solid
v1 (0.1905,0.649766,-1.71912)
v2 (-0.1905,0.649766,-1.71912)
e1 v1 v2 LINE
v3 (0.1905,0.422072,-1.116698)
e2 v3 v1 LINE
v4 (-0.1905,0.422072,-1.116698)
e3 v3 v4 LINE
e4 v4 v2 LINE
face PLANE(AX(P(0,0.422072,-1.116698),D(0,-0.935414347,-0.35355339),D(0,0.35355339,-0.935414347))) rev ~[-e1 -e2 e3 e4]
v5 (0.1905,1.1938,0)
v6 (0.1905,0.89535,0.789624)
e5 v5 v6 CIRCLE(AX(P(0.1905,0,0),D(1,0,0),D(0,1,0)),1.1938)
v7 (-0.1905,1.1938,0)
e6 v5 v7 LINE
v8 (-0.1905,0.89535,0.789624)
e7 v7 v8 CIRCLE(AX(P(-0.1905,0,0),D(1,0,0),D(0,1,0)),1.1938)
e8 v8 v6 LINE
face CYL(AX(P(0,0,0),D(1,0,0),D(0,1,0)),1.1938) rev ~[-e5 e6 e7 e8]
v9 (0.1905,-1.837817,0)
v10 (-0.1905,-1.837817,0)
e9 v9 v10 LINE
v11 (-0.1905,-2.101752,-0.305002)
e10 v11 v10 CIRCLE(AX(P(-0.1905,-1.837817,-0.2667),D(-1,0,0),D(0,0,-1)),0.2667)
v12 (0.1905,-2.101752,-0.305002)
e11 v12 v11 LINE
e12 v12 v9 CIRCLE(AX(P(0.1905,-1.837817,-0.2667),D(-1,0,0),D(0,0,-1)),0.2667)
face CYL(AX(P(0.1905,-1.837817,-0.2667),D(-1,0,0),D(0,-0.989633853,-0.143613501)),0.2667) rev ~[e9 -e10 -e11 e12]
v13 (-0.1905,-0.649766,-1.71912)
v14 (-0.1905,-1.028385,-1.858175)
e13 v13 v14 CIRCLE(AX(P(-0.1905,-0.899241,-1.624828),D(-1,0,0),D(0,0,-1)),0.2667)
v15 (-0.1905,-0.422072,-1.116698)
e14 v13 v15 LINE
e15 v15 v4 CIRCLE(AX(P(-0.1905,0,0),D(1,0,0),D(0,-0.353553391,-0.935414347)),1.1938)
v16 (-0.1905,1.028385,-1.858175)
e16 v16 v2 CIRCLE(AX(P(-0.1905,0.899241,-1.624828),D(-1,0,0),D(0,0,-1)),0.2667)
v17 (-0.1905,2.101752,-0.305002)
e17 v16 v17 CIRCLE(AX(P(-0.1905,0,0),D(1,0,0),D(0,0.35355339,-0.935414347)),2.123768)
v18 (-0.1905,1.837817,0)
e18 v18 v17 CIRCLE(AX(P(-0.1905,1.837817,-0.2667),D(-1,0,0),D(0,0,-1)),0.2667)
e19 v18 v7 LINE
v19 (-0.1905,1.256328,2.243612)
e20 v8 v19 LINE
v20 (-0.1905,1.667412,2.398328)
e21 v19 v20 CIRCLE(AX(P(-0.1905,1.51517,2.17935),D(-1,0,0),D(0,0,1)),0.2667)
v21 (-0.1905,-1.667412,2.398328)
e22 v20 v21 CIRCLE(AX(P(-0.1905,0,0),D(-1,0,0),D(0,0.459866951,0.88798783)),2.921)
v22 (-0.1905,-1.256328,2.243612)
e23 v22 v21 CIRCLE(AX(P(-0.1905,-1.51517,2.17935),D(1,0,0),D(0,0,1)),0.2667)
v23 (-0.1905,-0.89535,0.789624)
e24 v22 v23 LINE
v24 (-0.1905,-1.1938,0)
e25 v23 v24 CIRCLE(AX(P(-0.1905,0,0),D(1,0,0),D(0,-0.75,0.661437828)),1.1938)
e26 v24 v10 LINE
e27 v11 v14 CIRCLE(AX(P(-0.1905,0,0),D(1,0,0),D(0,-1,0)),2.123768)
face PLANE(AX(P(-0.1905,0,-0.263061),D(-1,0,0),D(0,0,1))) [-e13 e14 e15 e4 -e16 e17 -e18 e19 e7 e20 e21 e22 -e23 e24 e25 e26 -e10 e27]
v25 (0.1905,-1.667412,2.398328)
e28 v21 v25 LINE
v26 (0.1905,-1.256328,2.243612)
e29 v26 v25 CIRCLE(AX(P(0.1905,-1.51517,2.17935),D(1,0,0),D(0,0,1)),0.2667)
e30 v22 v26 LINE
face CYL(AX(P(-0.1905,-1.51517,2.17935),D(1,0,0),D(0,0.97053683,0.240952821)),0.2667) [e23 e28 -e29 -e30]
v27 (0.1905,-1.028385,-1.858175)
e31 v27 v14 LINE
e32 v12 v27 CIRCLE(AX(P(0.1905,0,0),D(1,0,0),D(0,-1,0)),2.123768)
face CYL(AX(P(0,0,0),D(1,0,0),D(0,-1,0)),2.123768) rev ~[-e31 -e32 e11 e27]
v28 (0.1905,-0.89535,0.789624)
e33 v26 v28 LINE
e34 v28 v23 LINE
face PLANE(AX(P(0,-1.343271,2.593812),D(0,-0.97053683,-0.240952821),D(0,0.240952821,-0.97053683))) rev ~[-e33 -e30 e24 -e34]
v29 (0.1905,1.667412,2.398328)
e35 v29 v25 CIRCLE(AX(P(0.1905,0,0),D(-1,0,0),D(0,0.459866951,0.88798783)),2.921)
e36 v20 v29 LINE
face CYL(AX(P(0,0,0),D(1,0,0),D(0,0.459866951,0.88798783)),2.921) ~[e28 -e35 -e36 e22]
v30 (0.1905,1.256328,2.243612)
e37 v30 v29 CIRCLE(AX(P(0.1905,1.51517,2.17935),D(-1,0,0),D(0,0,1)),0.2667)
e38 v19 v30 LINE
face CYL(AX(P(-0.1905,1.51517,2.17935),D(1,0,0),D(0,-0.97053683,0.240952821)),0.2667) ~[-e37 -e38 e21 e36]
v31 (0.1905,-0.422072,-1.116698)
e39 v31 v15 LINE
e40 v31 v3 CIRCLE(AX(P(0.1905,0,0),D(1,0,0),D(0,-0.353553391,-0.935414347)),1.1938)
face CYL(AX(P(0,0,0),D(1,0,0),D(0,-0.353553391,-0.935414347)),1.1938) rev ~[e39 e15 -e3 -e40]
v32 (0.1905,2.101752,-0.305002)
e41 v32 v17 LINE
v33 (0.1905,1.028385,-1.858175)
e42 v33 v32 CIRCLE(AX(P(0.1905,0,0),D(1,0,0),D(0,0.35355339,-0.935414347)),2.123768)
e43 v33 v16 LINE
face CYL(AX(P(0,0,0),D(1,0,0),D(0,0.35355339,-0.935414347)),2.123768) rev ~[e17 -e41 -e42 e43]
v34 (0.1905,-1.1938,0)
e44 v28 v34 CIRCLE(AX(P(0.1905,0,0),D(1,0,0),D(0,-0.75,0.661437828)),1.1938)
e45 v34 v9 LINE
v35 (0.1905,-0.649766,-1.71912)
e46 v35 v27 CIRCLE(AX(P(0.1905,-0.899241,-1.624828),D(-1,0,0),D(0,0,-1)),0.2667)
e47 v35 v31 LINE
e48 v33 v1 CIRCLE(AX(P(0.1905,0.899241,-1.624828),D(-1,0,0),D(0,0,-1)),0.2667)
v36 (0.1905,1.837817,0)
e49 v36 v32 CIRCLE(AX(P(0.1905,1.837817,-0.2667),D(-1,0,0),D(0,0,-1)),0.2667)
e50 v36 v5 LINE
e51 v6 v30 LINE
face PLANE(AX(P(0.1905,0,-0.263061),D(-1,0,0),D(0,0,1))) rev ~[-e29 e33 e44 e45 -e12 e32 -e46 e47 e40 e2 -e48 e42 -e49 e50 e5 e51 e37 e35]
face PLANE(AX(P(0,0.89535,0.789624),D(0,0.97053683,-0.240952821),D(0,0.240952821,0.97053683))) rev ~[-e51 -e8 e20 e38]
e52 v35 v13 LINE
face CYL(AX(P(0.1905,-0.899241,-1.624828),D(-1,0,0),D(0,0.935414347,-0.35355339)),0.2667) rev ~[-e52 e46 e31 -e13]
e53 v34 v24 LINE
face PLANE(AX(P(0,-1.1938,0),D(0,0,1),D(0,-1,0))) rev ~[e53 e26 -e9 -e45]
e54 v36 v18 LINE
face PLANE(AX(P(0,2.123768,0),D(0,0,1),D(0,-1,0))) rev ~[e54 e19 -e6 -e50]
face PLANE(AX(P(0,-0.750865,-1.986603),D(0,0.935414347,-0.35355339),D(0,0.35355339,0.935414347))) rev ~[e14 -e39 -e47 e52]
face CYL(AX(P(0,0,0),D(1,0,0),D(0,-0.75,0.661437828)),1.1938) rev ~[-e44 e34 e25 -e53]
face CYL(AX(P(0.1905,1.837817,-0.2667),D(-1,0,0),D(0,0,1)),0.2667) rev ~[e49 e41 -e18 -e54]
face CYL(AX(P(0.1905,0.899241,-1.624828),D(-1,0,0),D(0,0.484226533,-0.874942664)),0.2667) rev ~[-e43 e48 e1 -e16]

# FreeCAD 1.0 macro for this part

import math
import FreeCAD as App
import Part
import Sketcher

V = App.Vector
Q = App.Units.Quantity


def edges_at(feature, points):
    """Names of the edges that pass closest to the given points."""
    edges = feature.Shape.Edges
    near = lambda p: min(range(len(edges)), key=lambda i: edges[i].distToShape(Part.Vertex(*p))[0])
    return sorted({f"Edge{near(p) + 1}" for p in points})

doc = App.newDocument("Part")
params = doc.addObject("Spreadsheet::Sheet", "Params")
for row, (alias, value) in enumerate([
    ("sketch1_radius", "0.115 in"),
    ("sketch1_radius2", "0.047 in"),
    ("pad1_length", "0.015 in"),
    ("fillet_radius", "0.0105 in"),
], start=1):
    params.set(f"A{row}", alias)
    params.set(f"B{row}", "=" + value)
    params.setAlias(f"B{row}", alias)

body = doc.addObject("PartDesign::Body", "Body")

# Sketch on YZ plane
sketch1 = body.newObject("Sketcher::SketchObject", "Sketch")
sketch1.AttachmentSupport = (doc.getObject("YZ_Plane"), [""])
sketch1.MapMode = "FlatFace"
sketch1.addGeometry([
    Part.LineSegment(V(-0.9, 0.8, 0), V(-1.3, 2.6, 0)),  # 0
    Part.ArcOfCircle(Part.Circle(V(0, 0, 0), V(0, 0, 1), 2.9), math.radians(117), math.radians(423)),  # 1
    Part.LineSegment(V(1.3, 2.6, 0), V(0.9, 0.8, 0)),  # 2
    Part.ArcOfCircle(Part.Circle(V(0, 0, 0), V(0, 0, 1), 1.2), math.radians(0), math.radians(41)),  # 3
    Part.LineSegment(V(1.2, 0, 0), V(2.1, 0, 0)),  # 4
    Part.ArcOfCircle(Part.Circle(V(0, 0, 0), V(0, 0, 1), 2.1), math.radians(-69), math.radians(0)),  # 5
    Part.LineSegment(V(0.8, -2, 0), V(0.4, -1.1, 0)),  # 6
    Part.ArcOfCircle(Part.Circle(V(0, 0, 0), V(0, 0, 1), 1.2), math.radians(-111), math.radians(-69)),  # 7
    Part.LineSegment(V(-0.4, -1.1, 0), V(-0.8, -2, 0)),  # 8
    Part.ArcOfCircle(Part.Circle(V(0, 0, 0), V(0, 0, 1), 2.1), math.radians(180), math.radians(249)),  # 9
    Part.LineSegment(V(-2.1, 0, 0), V(-1.2, 0, 0)),  # 10
    Part.ArcOfCircle(Part.Circle(V(0, 0, 0), V(0, 0, 1), 1.2), math.radians(139), math.radians(180)),  # 11
], False)
sketch1.addConstraint([
    Sketcher.Constraint("Coincident", 0, 2, 1, 1),
    Sketcher.Constraint("Coincident", 1, 2, 2, 1),
    Sketcher.Constraint("Coincident", 2, 2, 3, 2),
    Sketcher.Constraint("Coincident", 3, 1, 4, 1),
    Sketcher.Constraint("Coincident", 4, 2, 5, 2),
    Sketcher.Constraint("Coincident", 5, 1, 6, 1),
    Sketcher.Constraint("Coincident", 6, 2, 7, 2),
    Sketcher.Constraint("Coincident", 7, 1, 8, 1),
    Sketcher.Constraint("Coincident", 8, 2, 9, 2),
    Sketcher.Constraint("Coincident", 9, 1, 10, 1),
    Sketcher.Constraint("Coincident", 10, 2, 11, 2),
    Sketcher.Constraint("Coincident", 11, 1, 0, 1),
    Sketcher.Constraint("Horizontal", 4),
    Sketcher.Constraint("Horizontal", 10),
    Sketcher.Constraint("Coincident", 1, 3, -1, 1),
    Sketcher.Constraint("Coincident", 3, 3, -1, 1),
    Sketcher.Constraint("Coincident", 5, 3, -1, 1),
    Sketcher.Constraint("Coincident", 7, 3, -1, 1),
    Sketcher.Constraint("Coincident", 9, 3, -1, 1),
    Sketcher.Constraint("Coincident", 11, 3, -1, 1),
    Sketcher.Constraint("Equal", 3, 7),
    Sketcher.Constraint("Equal", 5, 9),
    Sketcher.Constraint("Equal", 7, 11),
    Sketcher.Constraint("PointOnObject", 3, 1, -1),
    Sketcher.Constraint("PointOnObject", 9, 1, -1),
    Sketcher.Constraint("Horizontal", 0, 2, 1, 2),
    Sketcher.Constraint("Horizontal", 6, 2, 7, 1),
    Sketcher.Constraint("Horizontal", 5, 1, 8, 2),
    Sketcher.Constraint("Horizontal", 2, 2, 11, 1),
    Sketcher.Constraint("Radius", 1, Q("0.115 in")),
    Sketcher.Constraint("Radius", 3, Q("0.047 in")),
    Sketcher.Constraint("Radius", 5, 2.123768),
    Sketcher.Constraint("Distance", 0, 1.858959),
    Sketcher.Constraint("DistanceX", 0, 2, -1, 1, 1.343271),
    Sketcher.Constraint("DistanceX", 8, 2, 5, 1, 1.501731),
    Sketcher.Constraint("DistanceX", -1, 1, 6, 2, 0.422072),
])
sketch1.setExpression("Constraints[29]", "Params.sketch1_radius")
sketch1.setExpression("Constraints[30]", "Params.sketch1_radius2")
pad1 = body.newObject("PartDesign::Pad", "Pad")
pad1.Profile = sketch1
pad1.setExpression("Length", "Params.pad1_length")
pad1.Midplane = True
doc.recompute()

fillet = body.newObject("PartDesign::Fillet", "Fillet")
fillet.Base = (pad1, edges_at(pad1, [
    (0, -1.343, 2.594),
    (0, -2.124, 0),
    (0, -0.751, -1.987),
    (0, 0.751, -1.987),
    (0, 2.124, 0),
    (0, 1.343, 2.594),
]))
fillet.setExpression("Radius", "Params.fillet_radius")

doc.recompute()
